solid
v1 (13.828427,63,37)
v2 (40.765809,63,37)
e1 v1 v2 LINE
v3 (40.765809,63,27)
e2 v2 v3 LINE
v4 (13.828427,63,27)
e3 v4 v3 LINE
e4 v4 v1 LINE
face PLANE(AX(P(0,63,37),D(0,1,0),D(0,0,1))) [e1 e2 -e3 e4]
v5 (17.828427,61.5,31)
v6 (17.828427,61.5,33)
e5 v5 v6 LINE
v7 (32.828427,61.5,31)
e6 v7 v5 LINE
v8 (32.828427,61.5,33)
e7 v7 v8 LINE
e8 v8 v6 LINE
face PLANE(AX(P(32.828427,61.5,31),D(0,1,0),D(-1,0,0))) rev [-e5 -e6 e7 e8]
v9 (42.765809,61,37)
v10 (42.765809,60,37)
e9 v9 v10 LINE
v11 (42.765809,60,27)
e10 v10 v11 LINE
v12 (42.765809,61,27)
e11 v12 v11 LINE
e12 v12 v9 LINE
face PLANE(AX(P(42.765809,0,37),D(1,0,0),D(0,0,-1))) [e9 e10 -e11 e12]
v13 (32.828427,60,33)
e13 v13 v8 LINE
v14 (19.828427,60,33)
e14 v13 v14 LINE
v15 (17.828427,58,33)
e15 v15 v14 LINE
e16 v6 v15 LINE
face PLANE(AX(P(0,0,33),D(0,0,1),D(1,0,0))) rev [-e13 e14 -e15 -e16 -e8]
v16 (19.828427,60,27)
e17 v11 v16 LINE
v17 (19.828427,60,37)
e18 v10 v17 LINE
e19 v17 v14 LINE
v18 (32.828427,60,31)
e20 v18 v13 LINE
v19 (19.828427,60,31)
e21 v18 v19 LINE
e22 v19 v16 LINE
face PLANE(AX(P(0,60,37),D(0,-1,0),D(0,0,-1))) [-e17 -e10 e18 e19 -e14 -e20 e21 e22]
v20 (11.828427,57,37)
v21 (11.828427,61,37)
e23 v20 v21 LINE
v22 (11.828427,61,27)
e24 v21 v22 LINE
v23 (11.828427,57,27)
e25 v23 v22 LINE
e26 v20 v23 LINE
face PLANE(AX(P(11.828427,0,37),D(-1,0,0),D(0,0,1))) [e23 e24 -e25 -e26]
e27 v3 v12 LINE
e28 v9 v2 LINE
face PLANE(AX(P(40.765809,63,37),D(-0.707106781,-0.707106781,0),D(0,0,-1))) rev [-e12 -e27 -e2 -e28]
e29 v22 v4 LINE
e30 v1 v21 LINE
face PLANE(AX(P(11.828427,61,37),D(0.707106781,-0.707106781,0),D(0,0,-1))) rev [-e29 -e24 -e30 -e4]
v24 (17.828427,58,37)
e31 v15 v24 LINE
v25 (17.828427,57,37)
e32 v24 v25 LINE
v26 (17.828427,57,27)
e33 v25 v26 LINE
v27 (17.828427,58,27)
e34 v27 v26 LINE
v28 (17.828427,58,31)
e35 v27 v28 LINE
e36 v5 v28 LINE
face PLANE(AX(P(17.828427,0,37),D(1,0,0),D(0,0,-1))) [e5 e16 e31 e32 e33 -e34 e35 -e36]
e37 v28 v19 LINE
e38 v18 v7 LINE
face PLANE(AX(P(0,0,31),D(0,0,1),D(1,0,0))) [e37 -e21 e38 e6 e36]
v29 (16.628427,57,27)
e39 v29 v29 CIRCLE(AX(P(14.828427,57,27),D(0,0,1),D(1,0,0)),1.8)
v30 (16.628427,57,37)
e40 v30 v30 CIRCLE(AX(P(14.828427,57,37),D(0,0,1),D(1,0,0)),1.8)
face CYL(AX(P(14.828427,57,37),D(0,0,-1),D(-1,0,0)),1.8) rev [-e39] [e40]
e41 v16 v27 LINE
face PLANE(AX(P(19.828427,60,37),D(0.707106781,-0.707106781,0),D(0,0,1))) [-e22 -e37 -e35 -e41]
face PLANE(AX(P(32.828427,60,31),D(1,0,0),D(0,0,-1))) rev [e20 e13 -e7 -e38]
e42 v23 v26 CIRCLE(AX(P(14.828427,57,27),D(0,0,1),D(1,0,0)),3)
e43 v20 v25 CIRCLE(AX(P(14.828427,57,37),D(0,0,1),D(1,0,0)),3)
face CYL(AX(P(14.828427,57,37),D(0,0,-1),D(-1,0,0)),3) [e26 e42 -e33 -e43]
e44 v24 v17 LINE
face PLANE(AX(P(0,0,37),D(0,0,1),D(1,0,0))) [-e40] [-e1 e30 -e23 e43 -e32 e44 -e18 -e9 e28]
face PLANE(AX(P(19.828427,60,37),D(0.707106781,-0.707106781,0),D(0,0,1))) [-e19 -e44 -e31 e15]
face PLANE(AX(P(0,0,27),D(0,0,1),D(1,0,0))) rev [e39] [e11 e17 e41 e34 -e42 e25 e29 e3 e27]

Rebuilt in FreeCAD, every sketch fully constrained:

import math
import FreeCAD as App
import Part
import Sketcher
from FreeCAD import Vector
Q = App.Units.Quantity


def edges_at(feature, points):
    """Names of the edges that pass closest to the given points."""
    edges = feature.Shape.Edges
    near = lambda p: min(range(len(edges)), key=lambda i: edges[i].distToShape(Part.Vertex(*p))[0])
    return sorted({f"Edge{near(p) + 1}" for p in points})

doc = App.newDocument("Part")
params = doc.addObject("Spreadsheet::Sheet", "Params")
for row, (alias, value) in enumerate([
    ("sketch1_width", "120 mm"),
    ("sketch1_height", "60 mm"),
    ("pad1_length", "2 mm"),
    ("chamfer_size", "10 mm"),
    ("sketch2_width", "100 mm"),
    ("sketch2_height", "2 mm"),
    ("sketch2_height2", "40 mm"),
    ("pad2_length", "15 mm"),
    ("fillet_radius", "2 mm"),
    ("sketch3_diameter", "5 mm"),
    ("sketch3_diameter2", "2 mm"),
    ("pad3_length", "4 mm"),
    ("sketch4_width", "61 mm"),
    ("sketch4_height", "14.6 mm"),
    ("pad4_length", "15 mm"),
    ("sketch5_radius", "7.3 mm"),
    ("sketch5_height", "7.5 mm"),
    ("pocket1_length", "55 mm"),
    ("chamfer2_size", "4 mm"),
    ("sketch6_width", "14 mm"),
    ("sketch6_width2", "10 mm"),
    ("sketch6_height", "16 mm"),
    ("sketch6_height2", "12 mm"),
    ("pad5_length", "4 mm"),
    ("sketch7_diameter", "6 mm"),
    ("sketch7_diameter2", "3 mm"),
    ("pad6_length", "4 mm"),
    ("pocket2_length", "85 mm"),
    ("sketch9_radius", "3 mm"),
    ("sketch9_diameter", "3.6 mm"),
    ("sketch9_height", "3 mm"),
    ("pad7_length", "10 mm"),
    ("chamfer3_size", "2 mm"),
    ("sketch10_width", "15 mm"),
    ("sketch10_height", "1.5 mm"),
    ("sketch10_height2", "3.5 mm"),
    ("pocket3_length", "2 mm"),
], start=1):
    params.set(f"A{row}", alias)
    params.set(f"B{row}", "=" + value)
    params.setAlias(f"B{row}", alias)

body = doc.addObject("PartDesign::Body", "Body")

sketch1 = doc.addObject("Sketcher::SketchObject", "Sketch")
body.addObject(sketch1)
sketch1.AttachmentSupport = (doc.XY_Plane, [""])
sketch1.MapMode = "FlatFace"
sketch1.addGeometry([
    Part.LineSegment(Vector(0, 60, 0), Vector(0, 0, 0)),
    Part.LineSegment(Vector(0, 0, 0), Vector(120, 0, 0)),
    Part.LineSegment(Vector(120, 0, 0), Vector(120, 60, 0)),
    Part.LineSegment(Vector(120, 60, 0), Vector(0, 60, 0)),
], False)
sketch1.addConstraint([
    Sketcher.Constraint("Coincident", 0, 2, 1, 1),
    Sketcher.Constraint("Coincident", 1, 2, 2, 1),
    Sketcher.Constraint("Coincident", 2, 2, 3, 1),
    Sketcher.Constraint("Coincident", 3, 2, 0, 1),
    Sketcher.Constraint("Vertical", 0),
    Sketcher.Constraint("Horizontal", 1),
    Sketcher.Constraint("Vertical", 2),
    Sketcher.Constraint("Horizontal", 3),
    Sketcher.Constraint("Coincident", 0, 2, -1, 1),
    Sketcher.Constraint("DistanceX", 1, 1, 1, 2, Q("120 mm")),
    Sketcher.Constraint("DistanceY", 0, 2, 0, 1, Q("60 mm")),
])
sketch1.setExpression("Constraints[9]", "Params.sketch1_width")
sketch1.setExpression("Constraints[10]", "Params.sketch1_height")
pad1 = doc.addObject("PartDesign::Pad", "Pad")
body.addObject(pad1)
pad1.Profile = sketch1
pad1.setExpression("Length", "Params.pad1_length")
doc.recompute()

chamfer = doc.addObject("PartDesign::Chamfer", "Chamfer")
body.addObject(chamfer)
chamfer.Base = (pad1, edges_at(pad1, [
    (0, 60, 1),
    (120, 60, 1),
    (120, 0, 1),
    (0, 0, 1),
]))
chamfer.setExpression("Size", "Params.chamfer_size")

sketch2 = doc.addObject("Sketcher::SketchObject", "Sketch001")
body.addObject(sketch2)
sketch2.AttachmentSupport = (doc.XY_Plane, [""])
sketch2.MapMode = "FlatFace"
sketch2.AttachmentOffset = App.Placement(Vector(0, 0, 2), App.Rotation())
sketch2.addGeometry([
    Part.LineSegment(Vector(109.171573, 2, 0), Vector(10.828427, 2, 0)),
    Part.LineSegment(Vector(10.828427, 2, 0), Vector(2, 10.828427, 0)),
    Part.LineSegment(Vector(2, 10.828427, 0), Vector(2, 49.171573, 0)),
    Part.LineSegment(Vector(2, 49.171573, 0), Vector(10.828427, 58, 0)),
    Part.LineSegment(Vector(10.828427, 58, 0), Vector(10.828427, 60, 0)),
    Part.LineSegment(Vector(10.828427, 60, 0), Vector(10, 60, 0)),
    Part.LineSegment(Vector(10, 60, 0), Vector(0, 50, 0)),
    Part.LineSegment(Vector(0, 50, 0), Vector(0, 10, 0)),
    Part.LineSegment(Vector(0, 10, 0), Vector(10, 0, 0)),
    Part.LineSegment(Vector(10, 0, 0), Vector(110, 0, 0)),
    Part.LineSegment(Vector(110, 0, 0), Vector(120, 10, 0)),
    Part.LineSegment(Vector(120, 10, 0), Vector(120, 50, 0)),
    Part.LineSegment(Vector(120, 50, 0), Vector(110, 60, 0)),
    Part.LineSegment(Vector(110, 60, 0), Vector(109.171573, 60, 0)),
    Part.LineSegment(Vector(109.171573, 60, 0), Vector(109.171573, 58, 0)),
    Part.LineSegment(Vector(109.171573, 58, 0), Vector(118, 49.171573, 0)),
    Part.LineSegment(Vector(118, 49.171573, 0), Vector(118, 10.828427, 0)),
    Part.LineSegment(Vector(118, 10.828427, 0), Vector(109.171573, 2, 0)),
    Part.LineSegment(Vector(40.828427, 60, 0), Vector(40.828427, 58, 0)),
    Part.LineSegment(Vector(40.828427, 58, 0), Vector(79.171573, 58, 0)),
    Part.LineSegment(Vector(79.171573, 58, 0), Vector(79.171573, 60, 0)),
    Part.LineSegment(Vector(79.171573, 60, 0), Vector(40.828427, 60, 0)),
], False)
sketch2.addConstraint([
    Sketcher.Constraint("Coincident", 0, 2, 1, 1),
    Sketcher.Constraint("Coincident", 1, 2, 2, 1),
    Sketcher.Constraint("Coincident", 2, 2, 3, 1),
    Sketcher.Constraint("Coincident", 3, 2, 4, 1),
    Sketcher.Constraint("Coincident", 4, 2, 5, 1),
    Sketcher.Constraint("Coincident", 5, 2, 6, 1),
    Sketcher.Constraint("Coincident", 6, 2, 7, 1),
    Sketcher.Constraint("Coincident", 7, 2, 8, 1),
    Sketcher.Constraint("Coincident", 8, 2, 9, 1),
    Sketcher.Constraint("Coincident", 9, 2, 10, 1),
    Sketcher.Constraint("Coincident", 10, 2, 11, 1),
    Sketcher.Constraint("Coincident", 11, 2, 12, 1),
    Sketcher.Constraint("Coincident", 12, 2, 13, 1),
    Sketcher.Constraint("Coincident", 13, 2, 14, 1),
    Sketcher.Constraint("Coincident", 14, 2, 15, 1),
    Sketcher.Constraint("Coincident", 15, 2, 16, 1),
    Sketcher.Constraint("Coincident", 16, 2, 17, 1),
    Sketcher.Constraint("Coincident", 17, 2, 0, 1),
    Sketcher.Constraint("Coincident", 18, 2, 19, 1),
    Sketcher.Constraint("Coincident", 19, 2, 20, 1),
    Sketcher.Constraint("Coincident", 20, 2, 21, 1),
    Sketcher.Constraint("Coincident", 21, 2, 18, 1),
    Sketcher.Constraint("Horizontal", 0),
    Sketcher.Constraint("Vertical", 2),
    Sketcher.Constraint("Vertical", 4),
    Sketcher.Constraint("Horizontal", 5),
    Sketcher.Constraint("Vertical", 7),
    Sketcher.Constraint("Horizontal", 9),
    Sketcher.Constraint("Vertical", 11),
    Sketcher.Constraint("Horizontal", 13),
    Sketcher.Constraint("Vertical", 14),
    Sketcher.Constraint("Vertical", 16),
    Sketcher.Constraint("Vertical", 18),
    Sketcher.Constraint("Horizontal", 19),
    Sketcher.Constraint("Vertical", 20),
    Sketcher.Constraint("Horizontal", 21),
    Sketcher.Constraint("PointOnObject", 6, 2, -2),
    Sketcher.Constraint("PointOnObject", 8, 2, -1),
    Sketcher.Constraint("Perpendicular", 1, 3),
    Sketcher.Constraint("Parallel", 3, 6),
    Sketcher.Constraint("Perpendicular", 6, 8),
    Sketcher.Constraint("Perpendicular", 8, 10),
    Sketcher.Constraint("Perpendicular", 10, 12),
    Sketcher.Constraint("Parallel", 12, 15),
    Sketcher.Constraint("Perpendicular", 15, 17),
    Sketcher.Constraint("Horizontal", 7, 2, 10, 2),
    Sketcher.Constraint("Horizontal", 6, 2, 11, 2),
    Sketcher.Constraint("Horizontal", 5, 2, 12, 2),
    Sketcher.Constraint("Horizontal", 3, 2, 14, 2),
    Sketcher.Constraint("Horizontal", 2, 2, 15, 2),
    Sketcher.Constraint("Horizontal", 1, 2, 16, 2),
    Sketcher.Constraint("Horizontal", 14, 2, 18, 2),
    Sketcher.Constraint("Horizontal", 13, 2, 20, 2),
    Sketcher.Constraint("Vertical", 0, 2, 3, 2),
    Sketcher.Constraint("Vertical", 5, 2, 8, 2),
    Sketcher.Constraint("Vertical", 9, 2, 12, 2),
    Sketcher.Constraint("Equal", 5, 13),
    Sketcher.Constraint("Equal", 21, 2),
    Sketcher.Constraint("DistanceX", 9, 1, 9, 2, Q("100 mm")),
    Sketcher.Constraint("DistanceY", 4, 1, 4, 2, Q("2 mm")),
    Sketcher.Constraint("DistanceY", 7, 2, 7, 1, Q("40 mm")),
    Sketcher.Constraint("DistanceY", -1, 1, 0, 2, Q("2 mm")),
    Sketcher.Constraint("DistanceX", -1, 1, 1, 2, Q("2 mm")),
    Sketcher.Constraint("DistanceY", -1, 1, 3, 2, Q("58 mm")),
    Sketcher.Constraint("DistanceX", 3, 2, 18, 2, Q("30 mm")),
    Sketcher.Constraint("Distance", 1, Q("12.485281 mm")),
])
sketch2.setExpression("Constraints[58]", "Params.sketch2_width")
sketch2.setExpression("Constraints[59]", "Params.sketch2_height")
sketch2.setExpression("Constraints[60]", "Params.sketch2_height2")
pad2 = doc.addObject("PartDesign::Pad", "Pad001")
body.addObject(pad2)
pad2.Profile = sketch2
pad2.setExpression("Length", "Params.pad2_length")
doc.recompute()

fillet = doc.addObject("PartDesign::Fillet", "Fillet")
body.addObject(fillet)
fillet.Base = (pad2, edges_at(pad2, [
    (113.586, 53.586, 2),
    (118, 30, 2),
    (113.586, 6.414, 2),
    (60, 2, 2),
    (6.414, 6.414, 2),
    (2, 30, 2),
    (6.414, 53.586, 2),
    (60, 58, 2),
]))
fillet.setExpression("Radius", "Params.fillet_radius")

sketch3 = doc.addObject("Sketcher::SketchObject", "Sketch002")
body.addObject(sketch3)
sketch3.AttachmentSupport = (doc.XY_Plane, [""])
sketch3.MapMode = "FlatFace"
sketch3.AttachmentOffset = App.Placement(Vector(0, 0, 2), App.Rotation())
sketch3.addGeometry([
    Part.Circle(Vector(33, 41, 0), Vector(0, 0, 1), 2.5),
    Part.Circle(Vector(33, 41, 0), Vector(0, 0, 1), 1),
], False)
sketch3.addConstraint([
    Sketcher.Constraint("Coincident", 1, 3, 0, 3),
    Sketcher.Constraint("Diameter", 0, Q("5 mm")),
    Sketcher.Constraint("Diameter", 1, Q("2 mm")),
    Sketcher.Constraint("DistanceX", -1, 1, 0, 3, Q("33 mm")),
    Sketcher.Constraint("DistanceY", -1, 1, 0, 3, Q("41 mm")),
])
sketch3.setExpression("Constraints[1]", "Params.sketch3_diameter")
sketch3.setExpression("Constraints[2]", "Params.sketch3_diameter2")
pad3 = doc.addObject("PartDesign::Pad", "Pad002")
body.addObject(pad3)
pad3.Profile = sketch3
pad3.setExpression("Length", "Params.pad3_length")

sketch4 = doc.addObject("Sketcher::SketchObject", "Sketch003")
body.addObject(sketch4)
sketch4.AttachmentSupport = (doc.XY_Plane, [""])
sketch4.MapMode = "FlatFace"
sketch4.AttachmentOffset = App.Placement(Vector(0, 0, 2), App.Rotation())
sketch4.addGeometry([
    Part.LineSegment(Vector(29.5, 16.6, 0), Vector(29.5, 2, 0)),
    Part.LineSegment(Vector(29.5, 2, 0), Vector(90.5, 2, 0)),
    Part.LineSegment(Vector(90.5, 2, 0), Vector(90.5, 16.6, 0)),
    Part.LineSegment(Vector(90.5, 16.6, 0), Vector(29.5, 16.6, 0)),
], False)
sketch4.addConstraint([
    Sketcher.Constraint("Coincident", 0, 2, 1, 1),
    Sketcher.Constraint("Coincident", 1, 2, 2, 1),
    Sketcher.Constraint("Coincident", 2, 2, 3, 1),
    Sketcher.Constraint("Coincident", 3, 2, 0, 1),
    Sketcher.Constraint("Vertical", 0),
    Sketcher.Constraint("Horizontal", 1),
    Sketcher.Constraint("Vertical", 2),
    Sketcher.Constraint("Horizontal", 3),
    Sketcher.Constraint("DistanceX", 1, 1, 1, 2, Q("61 mm")),
    Sketcher.Constraint("DistanceY", 0, 2, 0, 1, Q("14.6 mm")),
    Sketcher.Constraint("DistanceY", -1, 1, 0, 2, Q("2 mm")),
    Sketcher.Constraint("DistanceX", -1, 1, 0, 2, Q("29.5 mm")),
])
sketch4.setExpression("Constraints[8]", "Params.sketch4_width")
sketch4.setExpression("Constraints[9]", "Params.sketch4_height")
pad4 = doc.addObject("PartDesign::Pad", "Pad003")
body.addObject(pad4)
pad4.Profile = sketch4
pad4.setExpression("Length", "Params.pad4_length")

sketch5 = doc.addObject("Sketcher::SketchObject", "Sketch004")
body.addObject(sketch5)
sketch5.AttachmentSupport = (doc.YZ_Plane, [""])
sketch5.MapMode = "FlatFace"
sketch5.AttachmentOffset = App.Placement(Vector(0, 0, 32.5), App.Rotation())
sketch5.addGeometry([
    Part.ArcOfCircle(Part.Circle(Vector(9.3, 9.5, 0), Vector(0, 0, 1), 7.3), math.radians(180), math.radians(360)),
    Part.LineSegment(Vector(2, 9.5, 0), Vector(2, 17, 0)),
    Part.LineSegment(Vector(2, 17, 0), Vector(16.6, 17, 0)),
    Part.LineSegment(Vector(16.6, 17, 0), Vector(16.6, 9.5, 0)),
], False)
sketch5.addConstraint([
    Sketcher.Constraint("Tangent", 0, 1, 1, 1),
    Sketcher.Constraint("Coincident", 1, 2, 2, 1),
    Sketcher.Constraint("Coincident", 2, 2, 3, 1),
    Sketcher.Constraint("Tangent", 3, 2, 0, 2),
    Sketcher.Constraint("Vertical", 1),
    Sketcher.Constraint("Horizontal", 2),
    Sketcher.Constraint("Vertical", 3),
    Sketcher.Constraint("Radius", 0, Q("7.3 mm")),
    Sketcher.Constraint("DistanceY", 1, 1, 1, 2, Q("7.5 mm")),
    Sketcher.Constraint("DistanceX", -1, 1, 0, 1, Q("2 mm")),
    Sketcher.Constraint("DistanceY", -1, 1, 1, 2, Q("17 mm")),
])
sketch5.setExpression("Constraints[7]", "Params.sketch5_radius")
sketch5.setExpression("Constraints[8]", "Params.sketch5_height")
pocket1 = doc.addObject("PartDesign::Pocket", "Pocket")
body.addObject(pocket1)
pocket1.Profile = sketch5
pocket1.setExpression("Length", "Params.pocket1_length")
pocket1.Reversed = True
doc.recompute()

chamfer2 = doc.addObject("PartDesign::Chamfer", "Chamfer001")
body.addObject(chamfer2)
chamfer2.Base = (pocket1, edges_at(pocket1, [(31, 16.6, 17), (89, 16.6, 17)]))
chamfer2.setExpression("Size", "Params.chamfer2_size")

sketch6 = doc.addObject("Sketcher::SketchObject", "Sketch005")
body.addObject(sketch6)
sketch6.AttachmentSupport = (doc.XY_Plane, [""])
sketch6.MapMode = "FlatFace"
sketch6.AttachmentOffset = App.Placement(Vector(0, 0, 2), App.Rotation())
sketch6.addGeometry([
    Part.LineSegment(Vector(38, 49, 0), Vector(38, 33, 0)),
    Part.LineSegment(Vector(38, 33, 0), Vector(52, 33, 0)),
    Part.LineSegment(Vector(52, 33, 0), Vector(52, 49, 0)),
    Part.LineSegment(Vector(52, 49, 0), Vector(38, 49, 0)),
    Part.LineSegment(Vector(50, 35, 0), Vector(40, 35, 0)),
    Part.LineSegment(Vector(40, 35, 0), Vector(40, 47, 0)),
    Part.LineSegment(Vector(40, 47, 0), Vector(50, 47, 0)),
    Part.LineSegment(Vector(50, 47, 0), Vector(50, 35, 0)),
], False)
sketch6.addConstraint([
    Sketcher.Constraint("Coincident", 0, 2, 1, 1),
    Sketcher.Constraint("Coincident", 1, 2, 2, 1),
    Sketcher.Constraint("Coincident", 2, 2, 3, 1),
    Sketcher.Constraint("Coincident", 3, 2, 0, 1),
    Sketcher.Constraint("Coincident", 4, 2, 5, 1),
    Sketcher.Constraint("Coincident", 5, 2, 6, 1),
    Sketcher.Constraint("Coincident", 6, 2, 7, 1),
    Sketcher.Constraint("Coincident", 7, 2, 4, 1),
    Sketcher.Constraint("Vertical", 0),
    Sketcher.Constraint("Horizontal", 1),
    Sketcher.Constraint("Vertical", 2),
    Sketcher.Constraint("Horizontal", 3),
    Sketcher.Constraint("Horizontal", 4),
    Sketcher.Constraint("Vertical", 5),
    Sketcher.Constraint("Horizontal", 6),
    Sketcher.Constraint("Vertical", 7),
    Sketcher.Constraint("DistanceX", 1, 1, 1, 2, Q("14 mm")),
    Sketcher.Constraint("DistanceX", 4, 2, 4, 1, Q("10 mm")),
    Sketcher.Constraint("DistanceY", 0, 2, 0, 1, Q("16 mm")),
    Sketcher.Constraint("DistanceY", 5, 1, 5, 2, Q("12 mm")),
    Sketcher.Constraint("DistanceX", -1, 1, 0, 2, Q("38 mm")),
    Sketcher.Constraint("DistanceY", -1, 1, 0, 2, Q("33 mm")),
    Sketcher.Constraint("DistanceX", -1, 1, 4, 2, Q("40 mm")),
    Sketcher.Constraint("DistanceY", -1, 1, 4, 2, Q("35 mm")),
])
sketch6.setExpression("Constraints[16]", "Params.sketch6_width")
sketch6.setExpression("Constraints[17]", "Params.sketch6_width2")
sketch6.setExpression("Constraints[18]", "Params.sketch6_height")
sketch6.setExpression("Constraints[19]", "Params.sketch6_height2")
pad5 = doc.addObject("PartDesign::Pad", "Pad004")
body.addObject(pad5)
pad5.Profile = sketch6
pad5.setExpression("Length", "Params.pad5_length")

sketch7 = doc.addObject("Sketcher::SketchObject", "Sketch006")
body.addObject(sketch7)
sketch7.AttachmentSupport = (doc.XY_Plane, [""])
sketch7.MapMode = "FlatFace"
sketch7.AttachmentOffset = App.Placement(Vector(0, 0, 2), App.Rotation())
sketch7.addGeometry([
    Part.Circle(Vector(14.828427, 57, 0), Vector(0, 0, 1), 3),
    Part.Circle(Vector(14.828427, 57, 0), Vector(0, 0, 1), 1.5),
    Part.Circle(Vector(105.171573, 57, 0), Vector(0, 0, 1), 3),
    Part.Circle(Vector(105.171573, 57, 0), Vector(0, 0, 1), 1.5),
], False)
sketch7.addConstraint([
    Sketcher.Constraint("Coincident", 1, 3, 0, 3),
    Sketcher.Constraint("Coincident", 3, 3, 2, 3),
    Sketcher.Constraint("Equal", 0, 2),
    Sketcher.Constraint("Equal", 1, 3),
    Sketcher.Constraint("Horizontal", 1, 3, 2, 3),
    Sketcher.Constraint("Diameter", 0, Q("6 mm")),
    Sketcher.Constraint("Diameter", 1, Q("3 mm")),
    Sketcher.Constraint("DistanceY", -1, 1, 0, 3, Q("57 mm")),
    Sketcher.Constraint("DistanceX", -1, 1, 0, 3, Q("14.828427 mm")),
    Sketcher.Constraint("DistanceX", -1, 1, 2, 3, Q("105.171573 mm")),
])
sketch7.setExpression("Constraints[5]", "Params.sketch7_diameter")
sketch7.setExpression("Constraints[6]", "Params.sketch7_diameter2")
pad6 = doc.addObject("PartDesign::Pad", "Pad005")
body.addObject(pad6)
pad6.Profile = sketch7
pad6.setExpression("Length", "Params.pad6_length")

sketch8 = doc.addObject("Sketcher::SketchObject", "Sketch007")
body.addObject(sketch8)
sketch8.AttachmentSupport = (doc.XZ_Plane, [""])
sketch8.MapMode = "FlatFace"
sketch8.AttachmentOffset = App.Placement(Vector(0, 0, -60), App.Rotation())
sketch8.addGeometry([
    Part.LineSegment(Vector(-10.79918, -11.44614, 0), Vector(-10.79918, 25.101545, 0)),
    Part.LineSegment(Vector(-10.79918, 25.101545, 0), Vector(131.564577, 25.101545, 0)),
    Part.LineSegment(Vector(131.564577, 25.101545, 0), Vector(131.564577, -11.44614, 0)),
    Part.LineSegment(Vector(131.564577, -11.44614, 0), Vector(-10.79918, -11.44614, 0)),
], False)
sketch8.addConstraint([
    Sketcher.Constraint("Coincident", 0, 2, 1, 1),
    Sketcher.Constraint("Coincident", 1, 2, 2, 1),
    Sketcher.Constraint("Coincident", 2, 2, 3, 1),
    Sketcher.Constraint("Coincident", 3, 2, 0, 1),
    Sketcher.Constraint("Vertical", 0),
    Sketcher.Constraint("Horizontal", 1),
    Sketcher.Constraint("Vertical", 2),
    Sketcher.Constraint("Horizontal", 3),
    Sketcher.Constraint("DistanceX", 1, 1, 1, 2, Q("142.363757 mm")),
    Sketcher.Constraint("DistanceY", 0, 1, 0, 2, Q("36.547685 mm")),
    Sketcher.Constraint("DistanceX", 0, 2, -1, 1, Q("10.79918 mm")),
    Sketcher.Constraint("DistanceY", 2, 2, -1, 1, Q("11.44614 mm")),
])
pocket2 = doc.addObject("PartDesign::Pocket", "Pocket001")
body.addObject(pocket2)
pocket2.Profile = sketch8
pocket2.setExpression("Length", "Params.pocket2_length")
pocket2.Reversed = True
body2 = doc.addObject("PartDesign::Body", "Body001")

sketch9 = doc.addObject("Sketcher::SketchObject", "Sketch008")
body2.addObject(sketch9)
sketch9.AttachmentSupport = (doc.getObject("XY_Plane001"), [""])
sketch9.MapMode = "FlatFace"
sketch9.AttachmentOffset = App.Placement(Vector(0, 0, 27), App.Rotation())
sketch9.addGeometry([
    Part.ArcOfCircle(Part.Circle(Vector(14.828427, 57, 0), Vector(0, 0, 1), 3), math.radians(180), math.radians(360)),
    Part.LineSegment(Vector(17.828427, 57, 0), Vector(17.828427, 60, 0)),
    Part.LineSegment(Vector(17.828427, 60, 0), Vector(42.765809, 60, 0)),
    Part.LineSegment(Vector(42.765809, 60, 0), Vector(42.765809, 63, 0)),
    Part.LineSegment(Vector(42.765809, 63, 0), Vector(11.828427, 63, 0)),
    Part.LineSegment(Vector(11.828427, 63, 0), Vector(11.828427, 57, 0)),
    Part.Circle(Vector(14.828427, 57, 0), Vector(0, 0, 1), 1.8),
], False)
sketch9.addConstraint([
    Sketcher.Constraint("Tangent", 0, 2, 1, 1),
    Sketcher.Constraint("Coincident", 1, 2, 2, 1),
    Sketcher.Constraint("Coincident", 2, 2, 3, 1),
    Sketcher.Constraint("Coincident", 3, 2, 4, 1),
    Sketcher.Constraint("Coincident", 4, 2, 5, 1),
    Sketcher.Constraint("Tangent", 5, 2, 0, 1),
    Sketcher.Constraint("Vertical", 1),
    Sketcher.Constraint("Horizontal", 2),
    Sketcher.Constraint("Vertical", 3),
    Sketcher.Constraint("Horizontal", 4),
    Sketcher.Constraint("Vertical", 5),
    Sketcher.Constraint("Coincident", 6, 3, 0, 3),
    Sketcher.Constraint("Equal", 1, 3),
    Sketcher.Constraint("Radius", 0, Q("3 mm")),
    Sketcher.Constraint("Diameter", 6, Q("3.6 mm")),
    Sketcher.Constraint("DistanceY", 1, 1, 1, 2, Q("3 mm")),
    Sketcher.Constraint("DistanceY", -1, 1, 0, 3, Q("57 mm")),
    Sketcher.Constraint("DistanceX", 2, 1, 2, 2, Q("24.937382 mm")),
    Sketcher.Constraint("DistanceX", -1, 1, 2, 2, Q("42.765809 mm")),
])
sketch9.setExpression("Constraints[13]", "Params.sketch9_radius")
sketch9.setExpression("Constraints[14]", "Params.sketch9_diameter")
sketch9.setExpression("Constraints[15]", "Params.sketch9_height")
pad7 = doc.addObject("PartDesign::Pad", "Pad006")
body2.addObject(pad7)
pad7.Profile = sketch9
pad7.setExpression("Length", "Params.pad7_length")
doc.recompute()

chamfer3 = doc.addObject("PartDesign::Chamfer", "Chamfer002")
body2.addObject(chamfer3)
chamfer3.Base = (pad7, edges_at(pad7, [(11.828, 63, 32), (42.766, 63, 32), (17.828, 60, 32)]))
chamfer3.setExpression("Size", "Params.chamfer3_size")

sketch10 = doc.addObject("Sketcher::SketchObject", "Sketch009")
body2.addObject(sketch10)
sketch10.AttachmentSupport = (doc.getObject("XY_Plane001"), [""])
sketch10.MapMode = "FlatFace"
sketch10.AttachmentOffset = App.Placement(Vector(0, 0, 33), App.Rotation())
sketch10.addGeometry([
    Part.LineSegment(Vector(32.828427, 60, 0), Vector(32.828427, 61.5, 0)),
    Part.LineSegment(Vector(32.828427, 61.5, 0), Vector(17.828427, 61.5, 0)),
    Part.LineSegment(Vector(17.828427, 61.5, 0), Vector(17.828427, 58, 0)),
    Part.LineSegment(Vector(17.828427, 58, 0), Vector(28.91121, 56.857463, 0)),
    Part.LineSegment(Vector(28.91121, 56.857463, 0), Vector(32.828427, 60, 0)),
], False)
sketch10.addConstraint([
    Sketcher.Constraint("Coincident", 0, 2, 1, 1),
    Sketcher.Constraint("Coincident", 1, 2, 2, 1),
    Sketcher.Constraint("Coincident", 2, 2, 3, 1),
    Sketcher.Constraint("Coincident", 3, 2, 4, 1),
    Sketcher.Constraint("Coincident", 4, 2, 0, 1),
    Sketcher.Constraint("Vertical", 0),
    Sketcher.Constraint("Horizontal", 1),
    Sketcher.Constraint("Vertical", 2),
    Sketcher.Constraint("DistanceX", 1, 2, 1, 1, Q("15 mm")),
    Sketcher.Constraint("DistanceY", 0, 1, 0, 2, Q("1.5 mm")),
    Sketcher.Constraint("DistanceY", 2, 2, 2, 1, Q("3.5 mm")),
    Sketcher.Constraint("DistanceY", -1, 1, 2, 2, Q("58 mm")),
    Sketcher.Constraint("Distance", 3, Q("11.14152 mm")),
    Sketcher.Constraint("DistanceX", -1, 1, 3, 2, Q("28.91121 mm")),
    Sketcher.Constraint("Distance", 4, Q("5.021965 mm")),
])
sketch10.setExpression("Constraints[8]", "Params.sketch10_width")
sketch10.setExpression("Constraints[9]", "Params.sketch10_height")
sketch10.setExpression("Constraints[10]", "Params.sketch10_height2")
pocket3 = doc.addObject("PartDesign::Pocket", "Pocket002")
body2.addObject(pocket3)
pocket3.Profile = sketch10
pocket3.setExpression("Length", "Params.pocket3_length")

doc.recompute()
